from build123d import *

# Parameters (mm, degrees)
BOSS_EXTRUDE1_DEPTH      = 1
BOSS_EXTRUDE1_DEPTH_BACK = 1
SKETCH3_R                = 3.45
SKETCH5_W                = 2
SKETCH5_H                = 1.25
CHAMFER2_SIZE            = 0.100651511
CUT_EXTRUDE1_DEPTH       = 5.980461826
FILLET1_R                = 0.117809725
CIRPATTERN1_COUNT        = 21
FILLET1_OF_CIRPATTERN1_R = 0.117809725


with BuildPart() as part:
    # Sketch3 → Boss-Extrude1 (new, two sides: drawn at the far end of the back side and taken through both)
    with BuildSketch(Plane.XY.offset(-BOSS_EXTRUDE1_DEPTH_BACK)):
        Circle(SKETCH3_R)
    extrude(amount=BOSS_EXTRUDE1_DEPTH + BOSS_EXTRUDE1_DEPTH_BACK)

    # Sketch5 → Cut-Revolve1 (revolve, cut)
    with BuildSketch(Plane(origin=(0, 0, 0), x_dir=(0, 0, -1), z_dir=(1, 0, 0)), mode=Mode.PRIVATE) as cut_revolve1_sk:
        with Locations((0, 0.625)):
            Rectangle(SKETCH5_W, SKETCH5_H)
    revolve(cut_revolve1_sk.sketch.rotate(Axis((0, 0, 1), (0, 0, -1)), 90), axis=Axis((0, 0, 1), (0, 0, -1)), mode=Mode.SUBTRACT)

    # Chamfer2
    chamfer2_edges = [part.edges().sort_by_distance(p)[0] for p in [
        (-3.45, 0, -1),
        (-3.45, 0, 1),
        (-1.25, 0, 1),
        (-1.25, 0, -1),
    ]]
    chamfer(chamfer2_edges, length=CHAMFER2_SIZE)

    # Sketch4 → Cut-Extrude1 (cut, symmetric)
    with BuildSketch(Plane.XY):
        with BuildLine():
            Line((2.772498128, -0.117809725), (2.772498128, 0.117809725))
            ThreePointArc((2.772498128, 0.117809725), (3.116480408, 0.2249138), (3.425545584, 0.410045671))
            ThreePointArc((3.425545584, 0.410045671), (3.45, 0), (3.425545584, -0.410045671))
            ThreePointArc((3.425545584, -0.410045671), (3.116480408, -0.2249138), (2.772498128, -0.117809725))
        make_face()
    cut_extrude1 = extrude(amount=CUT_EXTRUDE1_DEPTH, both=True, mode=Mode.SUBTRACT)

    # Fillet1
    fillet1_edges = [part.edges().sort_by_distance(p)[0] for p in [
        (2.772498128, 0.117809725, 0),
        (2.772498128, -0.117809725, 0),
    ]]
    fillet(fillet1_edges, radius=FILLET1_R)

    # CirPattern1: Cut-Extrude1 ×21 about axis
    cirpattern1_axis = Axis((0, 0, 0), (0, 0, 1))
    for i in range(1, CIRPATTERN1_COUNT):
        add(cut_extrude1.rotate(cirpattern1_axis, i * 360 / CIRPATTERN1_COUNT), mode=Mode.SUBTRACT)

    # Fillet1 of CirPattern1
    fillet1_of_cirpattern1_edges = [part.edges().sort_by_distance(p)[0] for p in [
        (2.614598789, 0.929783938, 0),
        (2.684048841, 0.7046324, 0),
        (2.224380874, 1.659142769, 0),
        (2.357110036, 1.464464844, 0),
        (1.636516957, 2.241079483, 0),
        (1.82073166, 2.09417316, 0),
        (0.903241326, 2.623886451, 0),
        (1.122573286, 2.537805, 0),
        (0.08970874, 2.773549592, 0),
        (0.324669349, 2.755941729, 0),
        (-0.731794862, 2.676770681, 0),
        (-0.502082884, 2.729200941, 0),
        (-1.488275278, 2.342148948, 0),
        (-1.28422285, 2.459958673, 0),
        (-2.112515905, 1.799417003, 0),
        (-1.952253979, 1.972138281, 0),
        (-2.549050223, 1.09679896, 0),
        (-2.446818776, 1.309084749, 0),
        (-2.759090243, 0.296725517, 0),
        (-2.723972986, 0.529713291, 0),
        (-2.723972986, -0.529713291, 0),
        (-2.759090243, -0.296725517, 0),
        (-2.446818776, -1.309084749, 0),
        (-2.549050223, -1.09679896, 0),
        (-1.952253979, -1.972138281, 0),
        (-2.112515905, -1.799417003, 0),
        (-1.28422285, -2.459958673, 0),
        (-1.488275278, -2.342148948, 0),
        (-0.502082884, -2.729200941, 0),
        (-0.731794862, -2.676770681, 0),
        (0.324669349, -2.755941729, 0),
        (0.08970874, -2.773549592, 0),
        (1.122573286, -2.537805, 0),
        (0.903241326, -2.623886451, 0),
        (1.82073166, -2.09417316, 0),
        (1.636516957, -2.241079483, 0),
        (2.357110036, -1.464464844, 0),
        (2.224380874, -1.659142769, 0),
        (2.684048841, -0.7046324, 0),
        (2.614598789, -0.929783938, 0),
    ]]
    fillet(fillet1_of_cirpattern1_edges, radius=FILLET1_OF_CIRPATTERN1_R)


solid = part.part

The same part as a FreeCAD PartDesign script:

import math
import FreeCAD as App
import Part
import Sketcher
from FreeCAD import Vector


def edges_at(feature, points):
    """Names of the edges that pass closest to the given points."""
    edges = feature.Shape.Edges
    near = lambda p: min(range(len(edges)), key=lambda i: edges[i].distToShape(Part.Vertex(*p))[0])
    return sorted({f"Edge{near(p) + 1}" for p in points})


def add_polygon(sketch, points):
    """Adds a closed chain of lines whose ends are joined by coincident constraints."""
    first, n = sketch.GeometryCount, len(points)
    for a, b in zip(points, points[1:] + points[:1]):
        sketch.addGeometry(Part.LineSegment(App.Vector(*a, 0), App.Vector(*b, 0)), False)
    for i in range(n):
        sketch.addConstraint(Sketcher.Constraint("Coincident", first + i, 2, first + (i + 1) % n, 1))

doc = App.newDocument("Part")
body = doc.addObject("PartDesign::Body", "Body")

# Sketch on XY plane
sketch1 = doc.addObject("Sketcher::SketchObject", "Sketch")
body.addObject(sketch1)
sketch1.AttachmentSupport = (doc.XY_Plane, [""])
sketch1.MapMode = "FlatFace"
sketch1.addGeometry(Part.Circle(Vector(0, 0, 0), Vector(0, 0, 1), 3.5), False)
sketch1.addConstraint(Sketcher.Constraint("Coincident", 0, 3, -1, 1))
sketch1.addConstraint(Sketcher.Constraint("Diameter", 0, 6.9))
pad1 = doc.addObject("PartDesign::Pad", "Pad")
body.addObject(pad1)
pad1.Profile = sketch1
pad1.Type = "TwoLengths"
pad1.Length = 1
pad1.Length2 = 1

# Sketch on YZ plane
sketch2 = doc.addObject("Sketcher::SketchObject", "Sketch001")
body.addObject(sketch2)
sketch2.AttachmentSupport = (doc.YZ_Plane, [""])
sketch2.MapMode = "FlatFace"
add_polygon(sketch2, [(1.2, 1), (0, 1), (0, -1), (1.2, -1)])  # lines 0-3
sketch2.addConstraint(Sketcher.Constraint("Horizontal", 0))
sketch2.addConstraint(Sketcher.Constraint("Vertical", 1))
sketch2.addConstraint(Sketcher.Constraint("Horizontal", 2))
sketch2.addConstraint(Sketcher.Constraint("Vertical", 3))
sketch2.addConstraint(Sketcher.Constraint("Symmetric", 0, 2, 1, 2, -1, 1))
sketch2.addConstraint(Sketcher.Constraint("DistanceY", 1, 2, 1, 1, 2.0))
sketch2.addConstraint(Sketcher.Constraint("DistanceX", 0, 2, 0, 1, 1.25))
groove = doc.addObject("PartDesign::Groove", "Groove")
body.addObject(groove)
groove.Profile = sketch2
groove.ReferenceAxis = (sketch2, ["V_Axis"])
groove.Angle = 360
doc.recompute()

chamfer = doc.addObject("PartDesign::Chamfer", "Chamfer")
body.addObject(chamfer)
chamfer.Base = (groove, edges_at(groove, [
    (-3.45, 0, -1),
    (-3.45, 0, 1),
    (-1.25, 0, 1),
    (-1.25, 0, -1),
]))
chamfer.Size = 0.100652

# Sketch on XY plane
sketch3 = doc.addObject("Sketcher::SketchObject", "Sketch002")
body.addObject(sketch3)
sketch3.AttachmentSupport = (doc.XY_Plane, [""])
sketch3.MapMode = "FlatFace"
sketch3.addGeometry(Part.LineSegment(Vector(2.77, 0.12, 0), Vector(2.77, -0.12, 0)), False)
sketch3.addGeometry(Part.ArcOfCircle(Part.Circle(Vector(2.5, -1.61, 0), Vector(0, 0, 1), 1.52), math.radians(52), math.radians(80)), False)
sketch3.addGeometry(Part.ArcOfCircle(Part.Circle(Vector(0, 0, 0), Vector(0, 0, 1), 3.45), math.radians(-6.83), math.radians(6.83)), False)
sketch3.addGeometry(Part.ArcOfCircle(Part.Circle(Vector(2.5, 1.61, 0), Vector(0, 0, 1), 1.52), math.radians(-80), math.radians(-52)), False)
sketch3.addConstraint(Sketcher.Constraint("Coincident", 0, 2, 1, 2))
sketch3.addConstraint(Sketcher.Constraint("Coincident", 1, 1, 2, 1))
sketch3.addConstraint(Sketcher.Constraint("Coincident", 2, 2, 3, 2))
sketch3.addConstraint(Sketcher.Constraint("Coincident", 3, 1, 0, 1))
sketch3.addConstraint(Sketcher.Constraint("Vertical", 0))
sketch3.addConstraint(Sketcher.Constraint("Coincident", 2, 3, -1, 1))
sketch3.addConstraint(Sketcher.Constraint("Equal", 1, 3))
sketch3.addConstraint(Sketcher.Constraint("Symmetric", 1, 3, 3, 3, -1))
sketch3.addConstraint(Sketcher.Constraint("Radius", 2, 3.45))
sketch3.addConstraint(Sketcher.Constraint("Radius", 1, 1.518353))
sketch3.addConstraint(Sketcher.Constraint("DistanceY", 0, 2, 0, 1, 0.235619))
sketch3.addConstraint(Sketcher.Constraint("DistanceX", -1, 1, 0, 2, 2.772498))
sketch3.addConstraint(Sketcher.Constraint("DistanceX", -1, 1, 1, 3, 2.49629))
pocket1 = doc.addObject("PartDesign::Pocket", "Pocket")
body.addObject(pocket1)
pocket1.Profile = sketch3
pocket1.Length = 11.960924
pocket1.Midplane = True
doc.recompute()

fillet = doc.addObject("PartDesign::Fillet", "Fillet")
body.addObject(fillet)
fillet.Base = (pocket1, edges_at(pocket1, [(2.772, 0.118, 0), (2.772, -0.118, 0)]))
fillet.Radius = 0.11781
doc.recompute()

polarpattern = doc.addObject("PartDesign::PolarPattern", "PolarPattern")
body.addObject(polarpattern)
polarpattern.Originals = [pocket1]
polarpattern.Axis = (doc.Z_Axis, [""])
polarpattern.Angle = 360
polarpattern.Occurrences = 21
body.Tip = polarpattern
doc.recompute()

fillet2 = doc.addObject("PartDesign::Fillet", "Fillet001")
body.addObject(fillet2)
fillet2.Base = (polarpattern, edges_at(polarpattern, [
    (2.615, 0.93, 0),
    (2.684, 0.705, 0),
    (2.224, 1.659, 0),
    (2.357, 1.464, 0),
    (1.637, 2.241, 0),
    (1.821, 2.094, 0),
    (0.903, 2.624, 0),
    (1.123, 2.538, 0),
    (0.09, 2.774, 0),
    (0.325, 2.756, 0),
    (-0.732, 2.677, 0),
    (-0.502, 2.729, 0),
    (-1.488, 2.342, 0),
    (-1.284, 2.46, 0),
    (-2.113, 1.799, 0),
    (-1.952, 1.972, 0),
    (-2.549, 1.097, 0),
    (-2.447, 1.309, 0),
    (-2.759, 0.297, 0),
    (-2.724, 0.53, 0),
    (-2.724, -0.53, 0),
    (-2.759, -0.297, 0),
    (-2.447, -1.309, 0),
    (-2.549, -1.097, 0),
    (-1.952, -1.972, 0),
    (-2.113, -1.799, 0),
    (-1.284, -2.46, 0),
    (-1.488, -2.342, 0),
    (-0.502, -2.729, 0),
    (-0.732, -2.677, 0),
    (0.325, -2.756, 0),
    (0.09, -2.774, 0),
    (1.123, -2.538, 0),
    (0.903, -2.624, 0),
    (1.821, -2.094, 0),
    (1.637, -2.241, 0),
    (2.357, -1.464, 0),
    (2.224, -1.659, 0),
    (2.684, -0.705, 0),
    (2.615, -0.93, 0),
]))
fillet2.Radius = 0.11781

doc.recompute()
